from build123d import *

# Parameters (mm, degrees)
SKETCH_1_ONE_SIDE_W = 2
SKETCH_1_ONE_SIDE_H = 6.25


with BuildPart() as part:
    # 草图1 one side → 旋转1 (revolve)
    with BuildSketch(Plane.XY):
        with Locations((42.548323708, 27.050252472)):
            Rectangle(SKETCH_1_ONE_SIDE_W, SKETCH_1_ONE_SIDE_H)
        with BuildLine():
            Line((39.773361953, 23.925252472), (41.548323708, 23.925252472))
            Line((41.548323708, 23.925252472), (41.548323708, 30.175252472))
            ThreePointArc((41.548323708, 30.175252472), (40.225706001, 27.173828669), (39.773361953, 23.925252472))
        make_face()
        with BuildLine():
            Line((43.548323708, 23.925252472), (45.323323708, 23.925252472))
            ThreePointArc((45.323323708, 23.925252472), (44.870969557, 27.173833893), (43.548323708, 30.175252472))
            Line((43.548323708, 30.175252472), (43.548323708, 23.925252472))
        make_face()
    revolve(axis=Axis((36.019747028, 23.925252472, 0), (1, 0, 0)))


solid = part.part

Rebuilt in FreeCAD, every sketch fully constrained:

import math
import FreeCAD as App
import Part
import Sketcher

V = App.Vector

doc = App.newDocument("Part")
params = doc.addObject("Spreadsheet::Sheet", "Params")
for row, (alias, value) in enumerate([
    ("sketch1_width", "2 mm"),
    ("revolution_angle", "360 deg"),
], start=1):
    params.set(f"A{row}", alias)
    params.set(f"B{row}", "=" + value)
    params.setAlias(f"B{row}", alias)

body = doc.addObject("PartDesign::Body", "Body")

# Sketch on XY plane
sketch1 = body.newObject("Sketcher::SketchObject", "Sketch")
sketch1.AttachmentSupport = (doc.getObject("XY_Plane"), [""])
sketch1.MapMode = "FlatFace"
sketch1.addGeometry([
    Part.LineSegment(V(43.5, 30.2, 0), V(41.5, 30.2, 0)),
    Part.ArcOfCircle(Part.Circle(V(51.7, 23.9, 0), V(0, 0, 1), 11.9), math.radians(148), math.radians(180)),
    Part.LineSegment(V(39.8, 23.9, 0), V(45.3, 23.9, 0)),
    Part.ArcOfCircle(Part.Circle(V(33.4, 23.9, 0), V(0, 0, 1), 11.9), math.radians(0), math.radians(32)),
], False)
sketch1.addGeometry(Part.LineSegment(V(33.4, 23.9, 0), V(51.7, 23.9, 0)), True)  # axis
sketch1.addConstraint([
    Sketcher.Constraint("Coincident", 0, 2, 1, 1),
    Sketcher.Constraint("Coincident", 1, 2, 2, 1),
    Sketcher.Constraint("Coincident", 2, 2, 3, 1),
    Sketcher.Constraint("Coincident", 3, 2, 0, 1),
    Sketcher.Constraint("Horizontal", 0),
    Sketcher.Constraint("Horizontal", 2),
    Sketcher.Constraint("Horizontal", 4),
    Sketcher.Constraint("Coincident", 4, 1, 3, 3),
    Sketcher.Constraint("Coincident", 4, 2, 1, 3),
    Sketcher.Constraint("Horizontal", 3, 3, 1, 2),
    Sketcher.Constraint("DistanceX", 0, 2, 0, 1, 2.0),
    Sketcher.Constraint("Radius", 1, 11.891239),
    Sketcher.Constraint("Radius", 3, 11.891021),
    Sketcher.Constraint("DistanceY", 3, 3, 0, 2, 6.25),
    Sketcher.Constraint("DistanceX", -1, 1, 1, 3, 51.664601),
    Sketcher.Constraint("DistanceY", -1, 1, 1, 3, 23.925252),
])
sketch1.setExpression("Constraints[10]", "Params.sketch1_width")
revolution = body.newObject("PartDesign::Revolution", "Revolution")
revolution.Profile = sketch1
revolution.ReferenceAxis = (sketch1, ["Axis0"])
revolution.setExpression("Angle", "Params.revolution_angle")

doc.recompute()
